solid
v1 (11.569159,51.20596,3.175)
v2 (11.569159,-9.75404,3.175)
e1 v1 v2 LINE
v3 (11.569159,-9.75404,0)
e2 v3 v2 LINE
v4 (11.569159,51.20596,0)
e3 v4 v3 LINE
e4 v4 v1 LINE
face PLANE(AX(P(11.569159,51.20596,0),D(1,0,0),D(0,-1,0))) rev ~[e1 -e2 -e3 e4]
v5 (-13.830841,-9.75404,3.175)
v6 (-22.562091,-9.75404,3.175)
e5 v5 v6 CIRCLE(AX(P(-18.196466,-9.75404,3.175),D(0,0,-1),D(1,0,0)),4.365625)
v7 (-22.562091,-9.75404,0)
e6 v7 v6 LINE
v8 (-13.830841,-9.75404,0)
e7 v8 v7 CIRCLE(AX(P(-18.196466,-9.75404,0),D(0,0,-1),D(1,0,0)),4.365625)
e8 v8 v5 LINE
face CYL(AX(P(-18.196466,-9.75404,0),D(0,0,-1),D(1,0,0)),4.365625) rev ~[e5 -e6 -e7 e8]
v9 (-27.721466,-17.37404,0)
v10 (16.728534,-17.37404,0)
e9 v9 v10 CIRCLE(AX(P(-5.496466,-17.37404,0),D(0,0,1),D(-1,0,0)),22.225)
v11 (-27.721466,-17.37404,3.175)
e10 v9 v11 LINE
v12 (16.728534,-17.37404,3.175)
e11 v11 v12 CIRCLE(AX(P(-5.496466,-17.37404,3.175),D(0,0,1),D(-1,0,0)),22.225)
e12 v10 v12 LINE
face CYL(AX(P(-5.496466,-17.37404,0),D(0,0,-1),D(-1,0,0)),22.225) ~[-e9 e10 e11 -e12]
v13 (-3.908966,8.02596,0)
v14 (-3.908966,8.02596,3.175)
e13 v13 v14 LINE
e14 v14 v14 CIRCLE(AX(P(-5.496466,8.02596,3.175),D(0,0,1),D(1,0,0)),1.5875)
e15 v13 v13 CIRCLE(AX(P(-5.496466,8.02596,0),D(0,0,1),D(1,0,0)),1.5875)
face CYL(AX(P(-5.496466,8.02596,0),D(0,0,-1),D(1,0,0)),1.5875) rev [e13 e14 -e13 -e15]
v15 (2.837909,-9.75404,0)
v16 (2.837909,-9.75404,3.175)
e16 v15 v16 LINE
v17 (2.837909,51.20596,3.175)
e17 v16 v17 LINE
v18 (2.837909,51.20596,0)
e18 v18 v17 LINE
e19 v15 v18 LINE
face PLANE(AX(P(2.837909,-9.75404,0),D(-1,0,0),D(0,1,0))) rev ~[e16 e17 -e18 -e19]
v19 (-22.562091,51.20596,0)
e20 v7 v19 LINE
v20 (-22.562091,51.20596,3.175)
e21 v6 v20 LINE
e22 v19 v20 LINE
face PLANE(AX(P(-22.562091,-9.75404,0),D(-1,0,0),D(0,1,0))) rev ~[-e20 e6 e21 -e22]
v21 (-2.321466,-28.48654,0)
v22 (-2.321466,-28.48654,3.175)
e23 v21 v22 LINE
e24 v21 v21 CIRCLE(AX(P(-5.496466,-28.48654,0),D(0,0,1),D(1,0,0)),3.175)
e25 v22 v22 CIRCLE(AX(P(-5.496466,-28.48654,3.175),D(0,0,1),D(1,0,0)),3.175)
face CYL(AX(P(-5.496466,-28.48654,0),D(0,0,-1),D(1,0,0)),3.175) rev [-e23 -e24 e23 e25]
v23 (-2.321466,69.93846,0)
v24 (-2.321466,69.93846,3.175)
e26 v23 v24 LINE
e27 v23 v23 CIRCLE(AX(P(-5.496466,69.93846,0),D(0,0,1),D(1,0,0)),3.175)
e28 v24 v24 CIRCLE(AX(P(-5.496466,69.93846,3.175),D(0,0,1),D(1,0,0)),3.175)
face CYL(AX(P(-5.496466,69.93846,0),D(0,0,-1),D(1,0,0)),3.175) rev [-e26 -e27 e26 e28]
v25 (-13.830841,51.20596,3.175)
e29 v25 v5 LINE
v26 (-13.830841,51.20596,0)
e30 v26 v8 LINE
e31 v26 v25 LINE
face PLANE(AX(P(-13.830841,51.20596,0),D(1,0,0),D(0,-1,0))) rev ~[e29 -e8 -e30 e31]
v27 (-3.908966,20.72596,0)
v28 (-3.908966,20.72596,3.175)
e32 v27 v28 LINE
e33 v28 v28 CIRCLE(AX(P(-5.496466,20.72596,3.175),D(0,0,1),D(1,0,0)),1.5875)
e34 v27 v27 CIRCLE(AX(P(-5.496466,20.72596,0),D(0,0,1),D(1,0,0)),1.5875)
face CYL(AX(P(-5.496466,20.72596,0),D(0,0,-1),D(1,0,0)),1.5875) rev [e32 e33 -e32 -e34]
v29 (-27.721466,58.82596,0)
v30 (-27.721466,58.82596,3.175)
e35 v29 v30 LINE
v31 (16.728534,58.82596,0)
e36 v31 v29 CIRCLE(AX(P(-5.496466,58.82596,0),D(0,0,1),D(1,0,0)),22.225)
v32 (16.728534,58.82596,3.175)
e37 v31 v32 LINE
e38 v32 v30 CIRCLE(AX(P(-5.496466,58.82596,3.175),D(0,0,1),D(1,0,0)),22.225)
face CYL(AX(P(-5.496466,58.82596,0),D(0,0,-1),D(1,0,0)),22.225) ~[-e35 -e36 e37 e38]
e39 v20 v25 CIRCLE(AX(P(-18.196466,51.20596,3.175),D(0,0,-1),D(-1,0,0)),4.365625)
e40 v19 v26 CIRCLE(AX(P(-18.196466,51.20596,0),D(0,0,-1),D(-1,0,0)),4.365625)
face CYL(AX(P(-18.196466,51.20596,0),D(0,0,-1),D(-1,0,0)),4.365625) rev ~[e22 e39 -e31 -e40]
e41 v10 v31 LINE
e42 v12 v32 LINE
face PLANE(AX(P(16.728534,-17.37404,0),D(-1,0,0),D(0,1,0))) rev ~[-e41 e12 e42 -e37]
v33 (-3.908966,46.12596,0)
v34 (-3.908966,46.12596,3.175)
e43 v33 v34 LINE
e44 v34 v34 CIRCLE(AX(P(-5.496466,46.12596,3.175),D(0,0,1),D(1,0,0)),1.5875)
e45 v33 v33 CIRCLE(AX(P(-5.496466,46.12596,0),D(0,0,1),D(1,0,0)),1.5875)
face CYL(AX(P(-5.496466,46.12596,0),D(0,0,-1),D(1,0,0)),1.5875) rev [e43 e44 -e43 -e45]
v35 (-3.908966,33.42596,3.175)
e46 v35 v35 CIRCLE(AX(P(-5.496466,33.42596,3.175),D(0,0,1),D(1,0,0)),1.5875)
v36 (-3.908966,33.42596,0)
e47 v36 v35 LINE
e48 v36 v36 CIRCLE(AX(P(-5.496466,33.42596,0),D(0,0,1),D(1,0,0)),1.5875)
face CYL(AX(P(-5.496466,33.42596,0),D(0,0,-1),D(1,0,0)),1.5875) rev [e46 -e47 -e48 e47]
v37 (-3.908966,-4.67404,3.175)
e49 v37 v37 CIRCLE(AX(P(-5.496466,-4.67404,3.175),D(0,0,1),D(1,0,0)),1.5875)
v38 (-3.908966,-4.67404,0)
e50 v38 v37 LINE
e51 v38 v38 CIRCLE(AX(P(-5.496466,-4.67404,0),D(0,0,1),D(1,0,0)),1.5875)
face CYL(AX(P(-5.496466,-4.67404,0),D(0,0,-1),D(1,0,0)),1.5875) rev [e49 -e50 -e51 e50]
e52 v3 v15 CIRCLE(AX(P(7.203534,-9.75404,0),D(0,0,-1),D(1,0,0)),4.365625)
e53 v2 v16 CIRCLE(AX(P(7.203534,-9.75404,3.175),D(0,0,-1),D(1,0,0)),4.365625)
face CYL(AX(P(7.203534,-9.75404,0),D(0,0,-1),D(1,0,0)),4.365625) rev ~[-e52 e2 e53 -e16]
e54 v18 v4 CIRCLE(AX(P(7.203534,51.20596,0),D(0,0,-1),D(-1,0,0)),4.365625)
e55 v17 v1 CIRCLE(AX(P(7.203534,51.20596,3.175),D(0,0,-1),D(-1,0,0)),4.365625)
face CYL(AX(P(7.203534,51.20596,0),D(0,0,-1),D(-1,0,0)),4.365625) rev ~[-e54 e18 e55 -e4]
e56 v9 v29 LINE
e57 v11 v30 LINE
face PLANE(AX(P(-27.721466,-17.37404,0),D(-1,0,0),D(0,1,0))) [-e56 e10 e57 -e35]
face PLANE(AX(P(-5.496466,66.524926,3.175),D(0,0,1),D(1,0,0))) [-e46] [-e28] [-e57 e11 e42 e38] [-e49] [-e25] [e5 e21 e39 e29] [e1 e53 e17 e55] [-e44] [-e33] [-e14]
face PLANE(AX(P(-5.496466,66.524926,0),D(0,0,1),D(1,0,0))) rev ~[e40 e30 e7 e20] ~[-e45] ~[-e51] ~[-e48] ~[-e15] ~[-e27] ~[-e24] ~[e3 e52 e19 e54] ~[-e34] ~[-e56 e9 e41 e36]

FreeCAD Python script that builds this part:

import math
import FreeCAD as App
import Part
import Sketcher
Q = App.Units.Quantity

doc = App.newDocument("Part")
body = doc.addObject("PartDesign::Body", "Body")

# Sketch on XY plane
sketch1 = body.newObject("Sketcher::SketchObject", "Sketch")
sketch1.AttachmentSupport = (doc.getObject("XY_Plane"), [""])
sketch1.MapMode = "FlatFace"
sketch1.addGeometry(Part.ArcOfCircle(Part.Circle(App.Vector(-5.5, 58.8, 0), App.Vector(0, 0, 1), 22.2), math.radians(0), math.radians(180)), False)
sketch1.addGeometry(Part.LineSegment(App.Vector(-27.7, 58.8, 0), App.Vector(-27.7, -17.4, 0)), False)
sketch1.addGeometry(Part.ArcOfCircle(Part.Circle(App.Vector(-5.5, -17.4, 0), App.Vector(0, 0, 1), 22.2), math.radians(180), math.radians(360)), False)
sketch1.addGeometry(Part.LineSegment(App.Vector(16.7, -17.4, 0), App.Vector(16.7, 58.8, 0)), False)
sketch1.addGeometry(Part.Circle(App.Vector(-5.5, -28.5, 0), App.Vector(0, 0, 1), 3.2), False)
sketch1.addGeometry(Part.Circle(App.Vector(-5.5, -4.7, 0), App.Vector(0, 0, 1), 1.6), False)
sketch1.addGeometry(Part.Circle(App.Vector(-5.5, 8, 0), App.Vector(0, 0, 1), 1.6), False)
sketch1.addGeometry(Part.ArcOfCircle(Part.Circle(App.Vector(-18.2, -9.8, 0), App.Vector(0, 0, 1), 4.4), math.radians(180), math.radians(360)), False)
sketch1.addGeometry(Part.LineSegment(App.Vector(-22.6, -9.8, 0), App.Vector(-22.6, 51.2, 0)), False)
sketch1.addGeometry(Part.ArcOfCircle(Part.Circle(App.Vector(-18.2, 51.2, 0), App.Vector(0, 0, 1), 4.4), math.radians(0), math.radians(180)), False)
sketch1.addGeometry(Part.LineSegment(App.Vector(-13.8, 51.2, 0), App.Vector(-13.8, -9.8, 0)), False)
sketch1.addGeometry(Part.Circle(App.Vector(-5.5, 20.7, 0), App.Vector(0, 0, 1), 1.6), False)
sketch1.addGeometry(Part.Circle(App.Vector(-5.5, 33.4, 0), App.Vector(0, 0, 1), 1.6), False)
sketch1.addGeometry(Part.Circle(App.Vector(-5.5, 46.1, 0), App.Vector(0, 0, 1), 1.6), False)
sketch1.addGeometry(Part.ArcOfCircle(Part.Circle(App.Vector(7.2, -9.8, 0), App.Vector(0, 0, 1), 4.4), math.radians(180), math.radians(360)), False)
sketch1.addGeometry(Part.LineSegment(App.Vector(2.8, -9.8, 0), App.Vector(2.8, 51.2, 0)), False)
sketch1.addGeometry(Part.ArcOfCircle(Part.Circle(App.Vector(7.2, 51.2, 0), App.Vector(0, 0, 1), 4.4), math.radians(0), math.radians(180)), False)
sketch1.addGeometry(Part.LineSegment(App.Vector(11.6, 51.2, 0), App.Vector(11.6, -9.8, 0)), False)
sketch1.addGeometry(Part.Circle(App.Vector(-5.5, 69.9, 0), App.Vector(0, 0, 1), 3.2), False)
sketch1.addConstraint(Sketcher.Constraint("Tangent", 0, 2, 1, 1))
sketch1.addConstraint(Sketcher.Constraint("Tangent", 1, 2, 2, 1))
sketch1.addConstraint(Sketcher.Constraint("Tangent", 2, 2, 3, 1))
sketch1.addConstraint(Sketcher.Constraint("Tangent", 3, 2, 0, 1))
sketch1.addConstraint(Sketcher.Constraint("Tangent", 7, 1, 8, 1))
sketch1.addConstraint(Sketcher.Constraint("Tangent", 8, 2, 9, 2))
sketch1.addConstraint(Sketcher.Constraint("Tangent", 9, 1, 10, 1))
sketch1.addConstraint(Sketcher.Constraint("Tangent", 10, 2, 7, 2))
sketch1.addConstraint(Sketcher.Constraint("Tangent", 14, 1, 15, 1))
sketch1.addConstraint(Sketcher.Constraint("Tangent", 15, 2, 16, 2))
sketch1.addConstraint(Sketcher.Constraint("Tangent", 16, 1, 17, 1))
sketch1.addConstraint(Sketcher.Constraint("Tangent", 17, 2, 14, 2))
sketch1.addConstraint(Sketcher.Constraint("Vertical", 1))
sketch1.addConstraint(Sketcher.Constraint("Vertical", 3))
sketch1.addConstraint(Sketcher.Constraint("Vertical", 8))
sketch1.addConstraint(Sketcher.Constraint("Vertical", 10))
sketch1.addConstraint(Sketcher.Constraint("Vertical", 15))
sketch1.addConstraint(Sketcher.Constraint("Vertical", 17))
sketch1.addConstraint(Sketcher.Constraint("Equal", 5, 6))
sketch1.addConstraint(Sketcher.Constraint("Equal", 6, 11))
sketch1.addConstraint(Sketcher.Constraint("Equal", 11, 12))
sketch1.addConstraint(Sketcher.Constraint("Equal", 12, 13))
sketch1.addConstraint(Sketcher.Constraint("Equal", 9, 14))
sketch1.addConstraint(Sketcher.Constraint("Equal", 4, 18))
sketch1.addConstraint(Sketcher.Constraint("Horizontal", 7, 3, 14, 3))
sketch1.addConstraint(Sketcher.Constraint("Horizontal", 9, 3, 16, 3))
sketch1.addConstraint(Sketcher.Constraint("Vertical", 2, 3, 4, 3))
sketch1.addConstraint(Sketcher.Constraint("Vertical", 4, 3, 5, 3))
sketch1.addConstraint(Sketcher.Constraint("Vertical", 5, 3, 6, 3))
sketch1.addConstraint(Sketcher.Constraint("Vertical", 6, 3, 11, 3))
sketch1.addConstraint(Sketcher.Constraint("Vertical", 11, 3, 12, 3))
sketch1.addConstraint(Sketcher.Constraint("Vertical", 12, 3, 13, 3))
sketch1.addConstraint(Sketcher.Constraint("Vertical", 13, 3, 18, 3))
sketch1.addConstraint(Sketcher.Constraint("Diameter", 4, Q("0.25 in")))
sketch1.addConstraint(Sketcher.Constraint("DistanceY", 1, 2, 1, 1, Q("3 in")))
sketch1.addConstraint(Sketcher.Constraint("Diameter", 5, Q("0.125 in")))
sketch1.addConstraint(Sketcher.Constraint("DistanceY", 8, 1, 8, 2, Q("2.4 in")))
sketch1.addConstraint(Sketcher.Constraint("Radius", 0, Q("0.875 in")))
sketch1.addConstraint(Sketcher.Constraint("Radius", 7, Q("0.171875 in")))
sketch1.addConstraint(Sketcher.Constraint("DistanceY", 2, 3, 6, 3, Q("1 in")))
sketch1.addConstraint(Sketcher.Constraint("DistanceY", 5, 3, 11, 3, Q("1 in")))
sketch1.addConstraint(Sketcher.Constraint("DistanceY", 12, 3, 0, 3, Q("1 in")))
sketch1.addConstraint(Sketcher.Constraint("DistanceY", 11, 3, 13, 3, Q("1 in")))
sketch1.addConstraint(Sketcher.Constraint("DistanceX", 7, 3, 14, 3, Q("1 in")))
sketch1.addConstraint(Sketcher.Constraint("DistanceY", 2, 3, 5, 3, Q("0.5 in")))
sketch1.addConstraint(Sketcher.Constraint("DistanceX", 7, 3, 5, 3, Q("0.5 in")))
sketch1.addConstraint(Sketcher.Constraint("DistanceY", 7, 3, 5, 3, Q("0.2 in")))
sketch1.addConstraint(Sketcher.Constraint("DistanceY", 4, 3, 2, 3, Q("0.4375 in")))
sketch1.addConstraint(Sketcher.Constraint("DistanceY", 0, 3, 18, 3, Q("0.4375 in")))
sketch1.addConstraint(Sketcher.Constraint("DistanceY", -1, 1, 0, 3, 58.82596))
sketch1.addConstraint(Sketcher.Constraint("DistanceX", 7, 1, -1, 1, 22.562091))
pad1 = body.newObject("PartDesign::Pad", "Pad")
pad1.Profile = sketch1
pad1.Length = Q("0.125 in")

doc.recompute()
